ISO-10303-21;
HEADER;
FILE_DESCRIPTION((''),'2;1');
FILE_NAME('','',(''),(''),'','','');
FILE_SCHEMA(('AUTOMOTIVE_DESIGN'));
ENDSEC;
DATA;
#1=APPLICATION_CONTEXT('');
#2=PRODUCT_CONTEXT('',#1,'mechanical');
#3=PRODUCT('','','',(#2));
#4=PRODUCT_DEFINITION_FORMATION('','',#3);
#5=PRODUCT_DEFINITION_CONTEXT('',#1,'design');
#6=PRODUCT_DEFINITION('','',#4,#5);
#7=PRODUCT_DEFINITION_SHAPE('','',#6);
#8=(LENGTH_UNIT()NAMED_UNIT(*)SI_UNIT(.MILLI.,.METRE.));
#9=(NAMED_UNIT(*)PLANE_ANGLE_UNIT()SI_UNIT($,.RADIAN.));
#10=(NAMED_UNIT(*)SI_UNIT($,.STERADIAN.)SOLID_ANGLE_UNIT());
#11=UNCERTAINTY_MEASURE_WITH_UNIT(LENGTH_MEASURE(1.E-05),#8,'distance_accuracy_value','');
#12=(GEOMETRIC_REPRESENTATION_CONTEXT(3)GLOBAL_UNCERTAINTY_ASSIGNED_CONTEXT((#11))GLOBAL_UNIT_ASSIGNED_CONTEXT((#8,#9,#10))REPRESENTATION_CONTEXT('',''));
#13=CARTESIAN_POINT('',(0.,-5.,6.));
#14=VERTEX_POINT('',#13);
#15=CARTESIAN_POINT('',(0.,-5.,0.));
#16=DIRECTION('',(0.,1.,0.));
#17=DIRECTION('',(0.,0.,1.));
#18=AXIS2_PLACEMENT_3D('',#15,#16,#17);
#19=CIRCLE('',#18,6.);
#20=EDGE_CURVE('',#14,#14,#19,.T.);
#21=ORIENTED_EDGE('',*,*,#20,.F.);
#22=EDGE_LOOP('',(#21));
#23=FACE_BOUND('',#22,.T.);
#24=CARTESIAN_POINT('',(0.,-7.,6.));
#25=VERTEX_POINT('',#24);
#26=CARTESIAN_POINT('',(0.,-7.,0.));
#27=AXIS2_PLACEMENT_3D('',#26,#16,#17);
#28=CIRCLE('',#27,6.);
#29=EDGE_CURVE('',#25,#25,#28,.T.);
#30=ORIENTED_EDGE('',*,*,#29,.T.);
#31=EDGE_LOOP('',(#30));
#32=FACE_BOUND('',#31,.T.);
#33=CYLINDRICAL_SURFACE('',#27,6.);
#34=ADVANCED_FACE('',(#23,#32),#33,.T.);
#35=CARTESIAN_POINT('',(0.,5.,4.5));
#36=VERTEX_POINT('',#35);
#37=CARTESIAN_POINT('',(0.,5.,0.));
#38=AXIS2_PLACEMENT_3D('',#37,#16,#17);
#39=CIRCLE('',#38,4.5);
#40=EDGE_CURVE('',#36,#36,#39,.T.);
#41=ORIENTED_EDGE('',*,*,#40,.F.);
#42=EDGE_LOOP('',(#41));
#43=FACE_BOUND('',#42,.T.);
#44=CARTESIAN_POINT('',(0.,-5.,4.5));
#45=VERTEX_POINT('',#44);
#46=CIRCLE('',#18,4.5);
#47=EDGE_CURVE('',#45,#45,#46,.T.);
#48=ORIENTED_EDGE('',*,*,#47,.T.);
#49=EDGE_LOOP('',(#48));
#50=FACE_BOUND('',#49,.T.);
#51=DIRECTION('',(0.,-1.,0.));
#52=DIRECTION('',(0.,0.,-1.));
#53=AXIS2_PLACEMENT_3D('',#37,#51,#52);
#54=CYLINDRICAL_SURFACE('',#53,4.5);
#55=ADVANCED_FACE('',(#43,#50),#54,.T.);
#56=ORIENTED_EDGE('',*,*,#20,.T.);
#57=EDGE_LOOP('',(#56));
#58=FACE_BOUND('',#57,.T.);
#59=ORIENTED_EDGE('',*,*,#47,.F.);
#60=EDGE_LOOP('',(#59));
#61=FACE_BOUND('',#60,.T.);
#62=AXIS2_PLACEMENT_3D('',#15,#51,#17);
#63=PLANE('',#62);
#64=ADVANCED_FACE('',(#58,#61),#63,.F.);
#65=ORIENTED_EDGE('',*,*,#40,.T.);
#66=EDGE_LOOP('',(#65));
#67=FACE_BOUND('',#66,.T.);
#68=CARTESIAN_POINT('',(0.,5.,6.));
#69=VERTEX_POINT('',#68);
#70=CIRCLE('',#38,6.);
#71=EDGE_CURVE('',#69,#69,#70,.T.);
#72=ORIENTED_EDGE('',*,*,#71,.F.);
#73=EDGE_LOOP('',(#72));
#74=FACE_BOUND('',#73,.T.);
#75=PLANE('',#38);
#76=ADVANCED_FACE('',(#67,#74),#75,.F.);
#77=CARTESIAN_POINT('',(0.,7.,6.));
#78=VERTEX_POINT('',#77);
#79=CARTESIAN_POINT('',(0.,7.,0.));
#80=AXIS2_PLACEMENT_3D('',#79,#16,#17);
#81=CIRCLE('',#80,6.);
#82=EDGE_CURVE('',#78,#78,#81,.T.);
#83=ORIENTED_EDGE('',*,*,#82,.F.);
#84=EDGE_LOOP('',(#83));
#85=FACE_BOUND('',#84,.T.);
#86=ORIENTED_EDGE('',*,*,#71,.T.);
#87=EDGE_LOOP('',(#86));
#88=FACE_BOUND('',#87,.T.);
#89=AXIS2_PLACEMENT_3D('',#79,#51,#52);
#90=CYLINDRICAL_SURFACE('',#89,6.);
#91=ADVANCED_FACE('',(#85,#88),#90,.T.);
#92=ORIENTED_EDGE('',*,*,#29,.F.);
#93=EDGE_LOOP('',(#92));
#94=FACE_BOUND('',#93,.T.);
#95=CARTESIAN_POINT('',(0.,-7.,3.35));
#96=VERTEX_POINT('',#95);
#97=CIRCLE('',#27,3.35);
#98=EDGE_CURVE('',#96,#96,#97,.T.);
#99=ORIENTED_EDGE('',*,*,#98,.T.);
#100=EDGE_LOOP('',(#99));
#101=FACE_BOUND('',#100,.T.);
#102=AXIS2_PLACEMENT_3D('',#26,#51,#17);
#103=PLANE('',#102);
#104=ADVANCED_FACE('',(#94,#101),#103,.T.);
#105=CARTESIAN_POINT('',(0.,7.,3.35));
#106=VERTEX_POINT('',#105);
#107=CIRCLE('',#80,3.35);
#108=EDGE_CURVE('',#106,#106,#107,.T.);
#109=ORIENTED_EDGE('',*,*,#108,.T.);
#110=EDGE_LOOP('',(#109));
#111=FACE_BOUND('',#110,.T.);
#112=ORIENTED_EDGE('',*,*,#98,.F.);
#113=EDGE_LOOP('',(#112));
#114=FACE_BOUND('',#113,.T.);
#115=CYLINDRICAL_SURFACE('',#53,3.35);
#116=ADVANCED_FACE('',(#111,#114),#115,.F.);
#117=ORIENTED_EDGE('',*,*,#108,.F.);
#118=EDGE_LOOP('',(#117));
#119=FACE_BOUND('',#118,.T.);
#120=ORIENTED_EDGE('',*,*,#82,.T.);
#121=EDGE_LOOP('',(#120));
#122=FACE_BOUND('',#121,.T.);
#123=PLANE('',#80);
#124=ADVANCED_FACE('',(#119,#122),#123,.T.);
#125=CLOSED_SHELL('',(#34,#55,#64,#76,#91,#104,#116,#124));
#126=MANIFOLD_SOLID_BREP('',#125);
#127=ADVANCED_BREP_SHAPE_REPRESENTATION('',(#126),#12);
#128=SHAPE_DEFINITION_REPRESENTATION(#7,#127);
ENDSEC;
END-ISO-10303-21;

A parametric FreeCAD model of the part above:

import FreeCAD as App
import Part
import Sketcher

doc = App.newDocument("Part")
params = doc.addObject("Spreadsheet::Sheet", "Params")
for row, (alias, value) in enumerate([
    ("sketch1_diameter", "9 mm"),
    ("sketch1_diameter2", "6.7 mm"),
    ("pad1_length", "10 mm"),
    ("sketch2_diameter", "12 mm"),
    ("sketch2_diameter2", "6.7 mm"),
    ("pad2_length", "2 mm"),
], start=1):
    params.set(f"A{row}", alias)
    params.set(f"B{row}", "=" + value)
    params.setAlias(f"B{row}", alias)

body = doc.addObject("PartDesign::Body", "Body")

# Sketch on XZ plane
sketch1 = body.newObject("Sketcher::SketchObject", "Sketch")
sketch1.AttachmentSupport = (doc.getObject("XZ_Plane"), [""])
sketch1.MapMode = "FlatFace"
sketch1.addGeometry([
    Part.Circle(App.Vector(0, 0, 0), App.Vector(0, 0, 1), 4.5),
    Part.Circle(App.Vector(0, 0, 0), App.Vector(0, 0, 1), 3.4),
], False)
sketch1.addConstraint([
    Sketcher.Constraint("Coincident", 0, 3, -1, 1),
    Sketcher.Constraint("Coincident", 1, 3, -1, 1),
    Sketcher.Constraint("Diameter", 0, 9.0),
    Sketcher.Constraint("Diameter", 1, 6.7),
])
sketch1.setExpression("Constraints[2]", "Params.sketch1_diameter")
sketch1.setExpression("Constraints[3]", "Params.sketch1_diameter2")
pad1 = body.newObject("PartDesign::Pad", "Pad")
pad1.Profile = sketch1
pad1.setExpression("Length", "Params.pad1_length")
pad1.Midplane = True

# Sketch on XZ plane
sketch2 = body.newObject("Sketcher::SketchObject", "Sketch001")
sketch2.AttachmentSupport = (doc.getObject("XZ_Plane"), [""])
sketch2.MapMode = "FlatFace"
sketch2.AttachmentOffset = App.Placement(App.Vector(0, 0, -5), App.Rotation())
sketch2.addGeometry([
    Part.Circle(App.Vector(0, 0, 0), App.Vector(0, 0, 1), 6),
    Part.Circle(App.Vector(0, 0, 0), App.Vector(0, 0, 1), 3.4),
], False)
sketch2.addConstraint([
    Sketcher.Constraint("Coincident", 0, 3, -1, 1),
    Sketcher.Constraint("Coincident", 1, 3, -1, 1),
    Sketcher.Constraint("Diameter", 0, 12.0),
    Sketcher.Constraint("Diameter", 1, 6.7),
])
sketch2.setExpression("Constraints[2]", "Params.sketch2_diameter")
sketch2.setExpression("Constraints[3]", "Params.sketch2_diameter2")
pad2 = body.newObject("PartDesign::Pad", "Pad001")
pad2.Profile = sketch2
pad2.setExpression("Length", "Params.pad2_length")
pad2.Reversed = True
doc.recompute()

mirrored = body.newObject("PartDesign::Mirrored", "Mirrored")
mirrored.Originals = [pad2]
mirrored.MirrorPlane = (doc.getObject("XZ_Plane"), [""])
body.Tip = mirrored

doc.recompute()
